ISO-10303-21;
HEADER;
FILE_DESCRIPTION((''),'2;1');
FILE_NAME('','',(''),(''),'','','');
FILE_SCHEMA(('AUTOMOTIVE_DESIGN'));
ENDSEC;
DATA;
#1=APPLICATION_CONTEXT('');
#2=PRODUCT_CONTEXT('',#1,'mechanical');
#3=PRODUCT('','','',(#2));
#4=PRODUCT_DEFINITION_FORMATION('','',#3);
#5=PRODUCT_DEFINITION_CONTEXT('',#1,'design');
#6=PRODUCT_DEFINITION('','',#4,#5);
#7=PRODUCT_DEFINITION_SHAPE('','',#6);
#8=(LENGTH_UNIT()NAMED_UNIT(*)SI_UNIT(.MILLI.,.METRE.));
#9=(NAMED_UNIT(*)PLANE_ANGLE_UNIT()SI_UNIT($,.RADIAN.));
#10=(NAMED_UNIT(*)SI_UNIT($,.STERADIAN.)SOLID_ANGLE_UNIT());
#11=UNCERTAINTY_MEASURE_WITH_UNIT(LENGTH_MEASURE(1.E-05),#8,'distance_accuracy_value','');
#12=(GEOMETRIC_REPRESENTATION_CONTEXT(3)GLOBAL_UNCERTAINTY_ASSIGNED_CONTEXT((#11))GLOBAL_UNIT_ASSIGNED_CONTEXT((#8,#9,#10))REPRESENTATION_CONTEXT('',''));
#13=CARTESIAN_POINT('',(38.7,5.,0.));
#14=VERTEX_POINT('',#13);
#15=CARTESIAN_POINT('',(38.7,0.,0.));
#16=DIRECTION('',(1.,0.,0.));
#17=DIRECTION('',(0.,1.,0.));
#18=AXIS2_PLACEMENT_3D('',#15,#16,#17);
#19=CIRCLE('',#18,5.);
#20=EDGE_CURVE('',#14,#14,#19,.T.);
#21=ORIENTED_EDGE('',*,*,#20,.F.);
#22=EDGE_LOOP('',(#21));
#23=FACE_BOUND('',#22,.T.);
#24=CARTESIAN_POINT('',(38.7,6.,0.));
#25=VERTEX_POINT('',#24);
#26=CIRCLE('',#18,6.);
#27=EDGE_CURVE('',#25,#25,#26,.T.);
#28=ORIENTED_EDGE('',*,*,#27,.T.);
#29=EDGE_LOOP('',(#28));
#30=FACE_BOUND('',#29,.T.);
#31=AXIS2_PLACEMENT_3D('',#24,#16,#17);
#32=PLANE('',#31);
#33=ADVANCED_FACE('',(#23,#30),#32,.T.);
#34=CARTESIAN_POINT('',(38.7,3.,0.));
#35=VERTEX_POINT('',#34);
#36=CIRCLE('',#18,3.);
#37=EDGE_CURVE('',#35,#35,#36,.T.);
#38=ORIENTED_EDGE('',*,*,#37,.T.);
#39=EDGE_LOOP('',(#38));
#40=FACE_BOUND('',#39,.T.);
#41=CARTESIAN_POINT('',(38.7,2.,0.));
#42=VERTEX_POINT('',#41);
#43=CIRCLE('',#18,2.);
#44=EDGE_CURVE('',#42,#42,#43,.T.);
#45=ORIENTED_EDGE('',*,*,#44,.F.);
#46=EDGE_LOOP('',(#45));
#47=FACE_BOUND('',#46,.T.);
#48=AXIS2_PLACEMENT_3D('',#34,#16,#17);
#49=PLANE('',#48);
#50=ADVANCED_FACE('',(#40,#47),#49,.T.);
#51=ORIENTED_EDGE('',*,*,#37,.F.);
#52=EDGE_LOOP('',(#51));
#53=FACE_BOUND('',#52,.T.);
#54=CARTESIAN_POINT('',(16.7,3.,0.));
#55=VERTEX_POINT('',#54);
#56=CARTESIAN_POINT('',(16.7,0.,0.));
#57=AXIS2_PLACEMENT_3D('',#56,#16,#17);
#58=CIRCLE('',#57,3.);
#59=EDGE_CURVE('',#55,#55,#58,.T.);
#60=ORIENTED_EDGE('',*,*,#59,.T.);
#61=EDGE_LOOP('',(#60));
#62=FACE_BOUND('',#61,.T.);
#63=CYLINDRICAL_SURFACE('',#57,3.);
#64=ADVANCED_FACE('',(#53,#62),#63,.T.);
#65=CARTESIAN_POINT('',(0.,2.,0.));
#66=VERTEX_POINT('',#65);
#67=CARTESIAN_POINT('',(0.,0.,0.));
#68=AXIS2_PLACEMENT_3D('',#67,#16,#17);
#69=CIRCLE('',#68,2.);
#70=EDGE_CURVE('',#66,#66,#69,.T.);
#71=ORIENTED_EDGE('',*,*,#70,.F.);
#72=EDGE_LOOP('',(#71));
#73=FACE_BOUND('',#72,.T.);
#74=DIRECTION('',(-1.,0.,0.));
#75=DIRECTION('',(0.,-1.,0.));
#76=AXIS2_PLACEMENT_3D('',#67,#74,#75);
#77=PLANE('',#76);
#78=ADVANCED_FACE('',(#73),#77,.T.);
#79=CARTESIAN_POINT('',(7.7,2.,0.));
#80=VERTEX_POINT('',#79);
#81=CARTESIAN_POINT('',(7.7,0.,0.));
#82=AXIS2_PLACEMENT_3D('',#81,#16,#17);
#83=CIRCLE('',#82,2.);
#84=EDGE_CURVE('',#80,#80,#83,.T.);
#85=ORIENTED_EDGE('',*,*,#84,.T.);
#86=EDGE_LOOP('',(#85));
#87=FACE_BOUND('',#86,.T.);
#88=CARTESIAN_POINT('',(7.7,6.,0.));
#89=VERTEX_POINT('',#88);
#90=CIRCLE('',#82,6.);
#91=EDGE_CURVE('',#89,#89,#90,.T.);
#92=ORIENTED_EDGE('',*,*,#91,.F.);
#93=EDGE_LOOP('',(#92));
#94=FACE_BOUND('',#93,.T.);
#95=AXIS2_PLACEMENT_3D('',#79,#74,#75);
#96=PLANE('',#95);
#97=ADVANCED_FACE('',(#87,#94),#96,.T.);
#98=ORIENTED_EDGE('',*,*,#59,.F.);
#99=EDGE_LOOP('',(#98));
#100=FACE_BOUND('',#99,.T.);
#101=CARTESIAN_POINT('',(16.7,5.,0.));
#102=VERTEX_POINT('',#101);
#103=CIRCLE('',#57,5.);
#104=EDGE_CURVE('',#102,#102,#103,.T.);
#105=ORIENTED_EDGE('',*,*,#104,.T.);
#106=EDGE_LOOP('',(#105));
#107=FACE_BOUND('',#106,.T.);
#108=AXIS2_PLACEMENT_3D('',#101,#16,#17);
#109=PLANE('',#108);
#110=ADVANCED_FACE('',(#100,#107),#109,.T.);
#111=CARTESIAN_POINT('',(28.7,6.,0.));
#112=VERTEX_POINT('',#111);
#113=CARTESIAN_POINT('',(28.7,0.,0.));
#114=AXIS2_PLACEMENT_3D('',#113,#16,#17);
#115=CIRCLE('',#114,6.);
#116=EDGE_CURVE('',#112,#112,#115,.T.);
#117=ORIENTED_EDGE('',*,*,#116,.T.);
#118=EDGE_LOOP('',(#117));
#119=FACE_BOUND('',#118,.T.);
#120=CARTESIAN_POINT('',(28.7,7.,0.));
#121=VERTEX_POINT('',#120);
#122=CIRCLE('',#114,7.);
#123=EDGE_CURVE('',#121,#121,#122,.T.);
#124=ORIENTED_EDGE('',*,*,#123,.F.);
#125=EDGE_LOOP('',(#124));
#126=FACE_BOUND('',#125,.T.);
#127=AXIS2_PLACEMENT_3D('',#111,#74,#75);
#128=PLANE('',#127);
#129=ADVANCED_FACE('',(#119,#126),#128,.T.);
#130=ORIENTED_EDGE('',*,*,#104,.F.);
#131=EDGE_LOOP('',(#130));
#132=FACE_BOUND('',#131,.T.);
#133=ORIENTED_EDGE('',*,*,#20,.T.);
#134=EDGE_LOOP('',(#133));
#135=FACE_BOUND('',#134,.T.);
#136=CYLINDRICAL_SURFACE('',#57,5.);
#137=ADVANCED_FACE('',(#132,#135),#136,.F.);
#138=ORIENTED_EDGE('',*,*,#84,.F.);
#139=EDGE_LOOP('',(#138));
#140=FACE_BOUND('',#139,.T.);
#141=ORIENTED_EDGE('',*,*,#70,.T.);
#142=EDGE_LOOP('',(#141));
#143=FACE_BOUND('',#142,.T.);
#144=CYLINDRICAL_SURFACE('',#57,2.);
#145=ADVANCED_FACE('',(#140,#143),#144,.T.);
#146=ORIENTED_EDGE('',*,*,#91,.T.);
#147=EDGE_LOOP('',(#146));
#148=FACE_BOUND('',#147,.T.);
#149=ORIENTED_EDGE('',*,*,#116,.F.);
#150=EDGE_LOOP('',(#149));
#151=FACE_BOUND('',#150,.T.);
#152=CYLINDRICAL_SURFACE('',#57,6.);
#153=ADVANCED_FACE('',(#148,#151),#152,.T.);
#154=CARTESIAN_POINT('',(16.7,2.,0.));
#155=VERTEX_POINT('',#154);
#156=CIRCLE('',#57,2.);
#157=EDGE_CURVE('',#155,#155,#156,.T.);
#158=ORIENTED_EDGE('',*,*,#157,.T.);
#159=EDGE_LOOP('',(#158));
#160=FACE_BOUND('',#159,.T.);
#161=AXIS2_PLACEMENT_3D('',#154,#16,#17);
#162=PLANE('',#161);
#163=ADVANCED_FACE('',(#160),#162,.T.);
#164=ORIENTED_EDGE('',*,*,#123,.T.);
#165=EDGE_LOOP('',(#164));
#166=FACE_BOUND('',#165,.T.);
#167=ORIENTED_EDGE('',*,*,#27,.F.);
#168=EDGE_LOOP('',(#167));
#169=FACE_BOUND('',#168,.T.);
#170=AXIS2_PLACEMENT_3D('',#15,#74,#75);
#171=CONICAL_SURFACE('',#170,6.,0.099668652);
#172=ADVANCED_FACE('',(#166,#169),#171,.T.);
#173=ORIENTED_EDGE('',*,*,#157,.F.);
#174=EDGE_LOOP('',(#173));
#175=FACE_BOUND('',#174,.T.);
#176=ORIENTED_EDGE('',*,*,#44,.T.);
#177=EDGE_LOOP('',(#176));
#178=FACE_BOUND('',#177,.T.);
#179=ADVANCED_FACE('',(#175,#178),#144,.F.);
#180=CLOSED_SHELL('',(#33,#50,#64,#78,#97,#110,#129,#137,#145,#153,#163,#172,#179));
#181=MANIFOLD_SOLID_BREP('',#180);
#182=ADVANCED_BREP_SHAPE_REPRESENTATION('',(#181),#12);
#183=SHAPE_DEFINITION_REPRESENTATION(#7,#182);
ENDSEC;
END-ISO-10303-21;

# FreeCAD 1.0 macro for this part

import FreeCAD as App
import Part
import Sketcher

V = App.Vector


def add_polygon(sketch, points):
    """Adds a closed chain of lines whose ends are joined by coincident constraints."""
    first, n = sketch.GeometryCount, len(points)
    for a, b in zip(points, points[1:] + points[:1]):
        sketch.addGeometry(Part.LineSegment(App.Vector(*a, 0), App.Vector(*b, 0)), False)
    for i in range(n):
        sketch.addConstraint(Sketcher.Constraint("Coincident", first + i, 2, first + (i + 1) % n, 1))

doc = App.newDocument("Part")
body = doc.addObject("PartDesign::Body", "Body")

# Sketch on XY plane
sketch1 = body.newObject("Sketcher::SketchObject", "Sketch")
sketch1.AttachmentSupport = (doc.getObject("XY_Plane"), [""])
sketch1.MapMode = "FlatFace"
add_polygon(sketch1, [(0, 2), (0, 0), (16.7, 0), (16.7, 2), (38.7, 2), (38.7, 3), (16.7, 3), (16.7, 5), (38.7, 5), (38.7, 6), (28.7, 7), (28.7, 6), (7.7, 6), (7.7, 2)])  # lines 0-13
sketch1.addConstraint(Sketcher.Constraint("Vertical", 0))
sketch1.addConstraint(Sketcher.Constraint("Horizontal", 1))
sketch1.addConstraint(Sketcher.Constraint("Vertical", 2))
sketch1.addConstraint(Sketcher.Constraint("Horizontal", 3))
sketch1.addConstraint(Sketcher.Constraint("Vertical", 4))
sketch1.addConstraint(Sketcher.Constraint("Horizontal", 5))
sketch1.addConstraint(Sketcher.Constraint("Vertical", 6))
sketch1.addConstraint(Sketcher.Constraint("Horizontal", 7))
sketch1.addConstraint(Sketcher.Constraint("Vertical", 8))
sketch1.addConstraint(Sketcher.Constraint("Vertical", 10))
sketch1.addConstraint(Sketcher.Constraint("Horizontal", 11))
sketch1.addConstraint(Sketcher.Constraint("Vertical", 12))
sketch1.addConstraint(Sketcher.Constraint("Horizontal", 13))
sketch1.addConstraint(Sketcher.Constraint("Coincident", 0, 2, -1, 1))
sketch1.addConstraint(Sketcher.Constraint("Horizontal", 8, 2, 10, 2))
sketch1.addConstraint(Sketcher.Constraint("Horizontal", 3, 2, 12, 2))
sketch1.addConstraint(Sketcher.Constraint("Vertical", 2, 2, 5, 2))
sketch1.addConstraint(Sketcher.Constraint("Vertical", 4, 2, 7, 2))
sketch1.addConstraint(Sketcher.Constraint("Equal", 2, 6))
sketch1.addConstraint(Sketcher.Constraint("Equal", 4, 8))
sketch1.addConstraint(Sketcher.Constraint("Equal", 8, 10))
sketch1.addConstraint(Sketcher.Constraint("DistanceX", 3, 1, 3, 2, 22.0))
sketch1.addConstraint(Sketcher.Constraint("DistanceX", 11, 2, 11, 1, 21.0))
sketch1.addConstraint(Sketcher.Constraint("DistanceY", 0, 2, 0, 1, 2.0))
sketch1.addConstraint(Sketcher.Constraint("DistanceY", 4, 1, 4, 2, 1.0))
sketch1.addConstraint(Sketcher.Constraint("DistanceX", 1, 1, 1, 2, 16.7))
sketch1.addConstraint(Sketcher.Constraint("DistanceX", 13, 2, 13, 1, 7.7))
revolution = body.newObject("PartDesign::Revolution", "Revolution")
revolution.Profile = sketch1
revolution.ReferenceAxis = (sketch1, ["H_Axis"])
revolution.Angle = 360

doc.recompute()
